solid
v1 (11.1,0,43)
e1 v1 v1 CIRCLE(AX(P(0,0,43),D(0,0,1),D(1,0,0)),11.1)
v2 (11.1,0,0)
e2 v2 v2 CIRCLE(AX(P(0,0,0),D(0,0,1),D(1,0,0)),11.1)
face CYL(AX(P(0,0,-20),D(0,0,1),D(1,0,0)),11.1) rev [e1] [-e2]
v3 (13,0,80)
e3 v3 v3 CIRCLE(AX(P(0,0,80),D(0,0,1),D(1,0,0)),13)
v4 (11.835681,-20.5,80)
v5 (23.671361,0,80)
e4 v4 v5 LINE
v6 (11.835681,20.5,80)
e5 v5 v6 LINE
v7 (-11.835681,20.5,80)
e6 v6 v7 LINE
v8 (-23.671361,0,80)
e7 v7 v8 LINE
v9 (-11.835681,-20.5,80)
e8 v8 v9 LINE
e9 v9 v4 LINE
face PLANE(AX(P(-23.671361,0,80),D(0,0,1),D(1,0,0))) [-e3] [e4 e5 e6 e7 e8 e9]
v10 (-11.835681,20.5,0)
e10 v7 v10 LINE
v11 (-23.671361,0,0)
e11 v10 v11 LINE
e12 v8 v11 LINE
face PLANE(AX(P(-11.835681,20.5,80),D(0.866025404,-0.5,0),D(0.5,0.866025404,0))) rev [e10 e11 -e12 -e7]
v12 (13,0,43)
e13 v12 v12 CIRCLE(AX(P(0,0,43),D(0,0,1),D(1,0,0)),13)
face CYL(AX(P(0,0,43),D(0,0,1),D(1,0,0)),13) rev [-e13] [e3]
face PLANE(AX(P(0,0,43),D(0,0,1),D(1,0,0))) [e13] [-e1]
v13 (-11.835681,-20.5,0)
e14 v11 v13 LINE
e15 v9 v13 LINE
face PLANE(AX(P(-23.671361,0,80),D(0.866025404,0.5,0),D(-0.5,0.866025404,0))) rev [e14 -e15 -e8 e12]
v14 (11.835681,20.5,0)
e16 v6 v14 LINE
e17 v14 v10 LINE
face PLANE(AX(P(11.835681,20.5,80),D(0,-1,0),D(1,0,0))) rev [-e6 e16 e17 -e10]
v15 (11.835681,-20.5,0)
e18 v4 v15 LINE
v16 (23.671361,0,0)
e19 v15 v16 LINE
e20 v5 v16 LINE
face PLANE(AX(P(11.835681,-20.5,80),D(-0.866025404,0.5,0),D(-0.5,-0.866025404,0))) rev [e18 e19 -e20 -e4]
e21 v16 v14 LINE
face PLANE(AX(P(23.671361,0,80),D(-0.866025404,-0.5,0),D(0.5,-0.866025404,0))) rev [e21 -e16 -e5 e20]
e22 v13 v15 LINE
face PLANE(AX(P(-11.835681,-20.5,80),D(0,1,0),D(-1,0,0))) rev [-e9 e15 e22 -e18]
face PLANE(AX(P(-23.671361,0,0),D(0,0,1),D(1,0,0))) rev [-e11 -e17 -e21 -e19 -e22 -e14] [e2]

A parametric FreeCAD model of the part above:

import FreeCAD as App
import Part
import Sketcher
from FreeCAD import Vector
Q = App.Units.Quantity


def add_polygon(sketch, points):
    """Adds a closed chain of lines whose ends are joined by coincident constraints."""
    first, n = sketch.GeometryCount, len(points)
    for a, b in zip(points, points[1:] + points[:1]):
        sketch.addGeometry(Part.LineSegment(App.Vector(*a, 0), App.Vector(*b, 0)), False)
    for i in range(n):
        sketch.addConstraint(Sketcher.Constraint("Coincident", first + i, 2, first + (i + 1) % n, 1))

doc = App.newDocument("Part")
body = doc.addObject("PartDesign::Body", "Body")

sketch1 = body.newObject("Sketcher::SketchObject", "Sketch")
sketch1.AttachmentSupport = (doc.getObject("XY_Plane"), [""])
sketch1.MapMode = "FlatFace"
add_polygon(sketch1, [(-24, 0), (-12, -20), (12, -20), (24, 0), (12, 20), (-12, 20)])
sketch1.addConstraint([
    Sketcher.Constraint("Horizontal", 1),
    Sketcher.Constraint("Horizontal", 4),
    Sketcher.Constraint("Symmetric", 0, 2, 3, 2, -1, 1),
    Sketcher.Constraint("Symmetric", 2, 2, 5, 2, -1, 1),
    Sketcher.Constraint("PointOnObject", 2, 2, -1),
    Sketcher.Constraint("Parallel", 2, 5),
    Sketcher.Constraint("Vertical", 1, 2, 3, 2),
    Sketcher.Constraint("Angle", 0, Q("-60 deg")),
    Sketcher.Constraint("DistanceY", 1, 2, 3, 2, 41.0),
    Sketcher.Constraint("DistanceX", 1, 1, 1, 2, 23.671361),
])
pad1 = body.newObject("PartDesign::Pad", "Pad")
pad1.Profile = sketch1
pad1.Length = 80

sketch2 = body.newObject("Sketcher::SketchObject", "Sketch001")
sketch2.AttachmentSupport = (doc.getObject("XY_Plane"), [""])
sketch2.MapMode = "FlatFace"
sketch2.AttachmentOffset = App.Placement(Vector(0, 0, 80), App.Rotation())
sketch2.addGeometry(Part.Circle(Vector(0, 0, 0), Vector(0, 0, 1), 13), False)
sketch2.addConstraint([
    Sketcher.Constraint("Coincident", 0, 3, -1, 1),
    Sketcher.Constraint("Diameter", 0, 26.0),
])
pocket1 = body.newObject("PartDesign::Pocket", "Pocket")
pocket1.Profile = sketch2
pocket1.Length = 37

sketch3 = body.newObject("Sketcher::SketchObject", "Sketch002")
sketch3.AttachmentSupport = (doc.getObject("XY_Plane"), [""])
sketch3.MapMode = "FlatFace"
sketch3.AttachmentOffset = App.Placement(Vector(0, 0, 43), App.Rotation())
sketch3.addGeometry(Part.Circle(Vector(0, 0, 0), Vector(0, 0, 1), 11), False)
sketch3.addConstraint([
    Sketcher.Constraint("Coincident", 0, 3, -1, 1),
    Sketcher.Constraint("Diameter", 0, 22.2),
])
pocket2 = body.newObject("PartDesign::Pocket", "Pocket001")
pocket2.Profile = sketch3
pocket2.Length = 63

doc.recompute()
